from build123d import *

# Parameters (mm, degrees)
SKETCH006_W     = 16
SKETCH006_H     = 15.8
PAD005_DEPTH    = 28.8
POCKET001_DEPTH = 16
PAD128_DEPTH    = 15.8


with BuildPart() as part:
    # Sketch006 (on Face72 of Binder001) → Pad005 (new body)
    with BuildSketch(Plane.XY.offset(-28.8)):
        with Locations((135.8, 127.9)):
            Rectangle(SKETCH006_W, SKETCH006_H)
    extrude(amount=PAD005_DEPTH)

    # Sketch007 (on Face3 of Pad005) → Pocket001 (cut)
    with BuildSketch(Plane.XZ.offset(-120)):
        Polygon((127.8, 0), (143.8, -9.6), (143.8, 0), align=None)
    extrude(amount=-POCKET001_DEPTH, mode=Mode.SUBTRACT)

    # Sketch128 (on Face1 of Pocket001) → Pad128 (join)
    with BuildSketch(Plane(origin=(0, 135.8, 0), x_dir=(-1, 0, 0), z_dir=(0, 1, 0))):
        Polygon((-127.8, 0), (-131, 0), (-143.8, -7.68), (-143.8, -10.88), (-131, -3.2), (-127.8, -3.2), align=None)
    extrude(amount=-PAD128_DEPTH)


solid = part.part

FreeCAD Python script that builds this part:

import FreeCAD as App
import Part
import Sketcher

V = App.Vector
Q = App.Units.Quantity


def add_polygon(sketch, points):
    """Adds a closed chain of lines whose ends are joined by coincident constraints."""
    first, n = sketch.GeometryCount, len(points)
    for a, b in zip(points, points[1:] + points[:1]):
        sketch.addGeometry(Part.LineSegment(App.Vector(*a, 0), App.Vector(*b, 0)), False)
    for i in range(n):
        sketch.addConstraint(Sketcher.Constraint("Coincident", first + i, 2, first + (i + 1) % n, 1))

doc = App.newDocument("Part")
body = doc.addObject("PartDesign::Body", "Body")

# Sketch on XY plane
sketch1 = body.newObject("Sketcher::SketchObject", "Sketch")
sketch1.AttachmentSupport = (doc.getObject("XY_Plane"), [""])
sketch1.MapMode = "FlatFace"
sketch1.AttachmentOffset = App.Placement(V(0, 0, -28.8), App.Rotation())
add_polygon(sketch1, [(128, 136), (128, 120), (144, 120), (144, 136)])  # lines 0-3
sketch1.addConstraint(Sketcher.Constraint("Vertical", 0))
sketch1.addConstraint(Sketcher.Constraint("Horizontal", 1))
sketch1.addConstraint(Sketcher.Constraint("Vertical", 2))
sketch1.addConstraint(Sketcher.Constraint("Horizontal", 3))
sketch1.addConstraint(Sketcher.Constraint("DistanceX", 1, 1, 1, 2, Q("16 mm")))
sketch1.addConstraint(Sketcher.Constraint("DistanceY", 0, 2, 0, 1, Q("15.8 mm")))
sketch1.addConstraint(Sketcher.Constraint("DistanceY", -1, 1, 0, 2, Q("120 mm")))
sketch1.addConstraint(Sketcher.Constraint("DistanceX", -1, 1, 0, 2, Q("127.8 mm")))
pad1 = body.newObject("PartDesign::Pad", "Pad")
pad1.Profile = sketch1
pad1.Length = 28.8

# Sketch on XZ plane
sketch2 = body.newObject("Sketcher::SketchObject", "Sketch001")
sketch2.AttachmentSupport = (doc.getObject("XZ_Plane"), [""])
sketch2.MapMode = "FlatFace"
sketch2.AttachmentOffset = App.Placement(V(0, 0, -120), App.Rotation())
add_polygon(sketch2, [(128, 0), (144, -10), (144, 0)])  # lines 0-2
sketch2.addConstraint(Sketcher.Constraint("Vertical", 1))
sketch2.addConstraint(Sketcher.Constraint("Horizontal", 2))
sketch2.addConstraint(Sketcher.Constraint("PointOnObject", 1, 2, -1))
sketch2.addConstraint(Sketcher.Constraint("DistanceX", 2, 2, 2, 1, Q("16 mm")))
sketch2.addConstraint(Sketcher.Constraint("DistanceY", 1, 1, 1, 2, Q("9.6 mm")))
sketch2.addConstraint(Sketcher.Constraint("DistanceX", -1, 1, 0, 2, Q("143.8 mm")))
pocket1 = body.newObject("PartDesign::Pocket", "Pocket")
pocket1.Profile = sketch2
pocket1.Length = 16

# Sketch on XZ plane
sketch3 = body.newObject("Sketcher::SketchObject", "Sketch002")
sketch3.AttachmentSupport = (doc.getObject("XZ_Plane"), [""])
sketch3.MapMode = "FlatFace"
sketch3.AttachmentOffset = App.Placement(V(0, 0, -135.8), App.Rotation())
add_polygon(sketch3, [(127.8, 0), (131, 0), (143.8, -7.7), (143.8, -10.9), (131, -3.2), (127.8, -3.2)])  # lines 0-5
sketch3.addConstraint(Sketcher.Constraint("Horizontal", 0))
sketch3.addConstraint(Sketcher.Constraint("Vertical", 2))
sketch3.addConstraint(Sketcher.Constraint("Horizontal", 4))
sketch3.addConstraint(Sketcher.Constraint("Vertical", 5))
sketch3.addConstraint(Sketcher.Constraint("PointOnObject", 0, 2, -1))
sketch3.addConstraint(Sketcher.Constraint("Parallel", 1, 3))
sketch3.addConstraint(Sketcher.Constraint("Vertical", 0, 2, 3, 2))
sketch3.addConstraint(Sketcher.Constraint("Equal", 4, 2))
sketch3.addConstraint(Sketcher.Constraint("DistanceX", 0, 1, 0, 2, Q("3.2 mm")))
sketch3.addConstraint(Sketcher.Constraint("DistanceX", -1, 1, 0, 2, Q("131 mm")))
sketch3.addConstraint(Sketcher.Constraint("DistanceX", 4, 2, 1, 2, Q("16 mm")))
sketch3.addConstraint(Sketcher.Constraint("DistanceY", 1, 2, -1, 1, Q("7.68 mm")))
pad2 = body.newObject("PartDesign::Pad", "Pad001")
pad2.Profile = sketch3
pad2.Length = 15.8

doc.recompute()
